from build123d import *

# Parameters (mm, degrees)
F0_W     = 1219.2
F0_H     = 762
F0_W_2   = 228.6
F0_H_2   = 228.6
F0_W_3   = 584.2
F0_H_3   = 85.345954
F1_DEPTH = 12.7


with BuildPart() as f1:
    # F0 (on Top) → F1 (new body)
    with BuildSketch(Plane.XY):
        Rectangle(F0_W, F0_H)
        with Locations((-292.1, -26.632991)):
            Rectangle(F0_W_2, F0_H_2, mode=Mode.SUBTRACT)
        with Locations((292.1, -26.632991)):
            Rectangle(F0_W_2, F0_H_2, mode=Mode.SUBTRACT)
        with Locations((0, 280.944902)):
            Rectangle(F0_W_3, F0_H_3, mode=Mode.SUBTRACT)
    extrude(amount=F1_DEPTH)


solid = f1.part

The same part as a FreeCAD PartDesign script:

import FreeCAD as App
import Part
import Sketcher

V = App.Vector
Q = App.Units.Quantity


def add_polygon(sketch, points):
    """Adds a closed chain of lines whose ends are joined by coincident constraints."""
    first, n = sketch.GeometryCount, len(points)
    for a, b in zip(points, points[1:] + points[:1]):
        sketch.addGeometry(Part.LineSegment(App.Vector(*a, 0), App.Vector(*b, 0)), False)
    for i in range(n):
        sketch.addConstraint(Sketcher.Constraint("Coincident", first + i, 2, first + (i + 1) % n, 1))

doc = App.newDocument("Part")
body = doc.addObject("PartDesign::Body", "Body")

# Sketch on XY plane
sketch1 = doc.addObject("Sketcher::SketchObject", "Sketch")
body.addObject(sketch1)
sketch1.AttachmentSupport = (doc.XY_Plane, [""])
sketch1.MapMode = "FlatFace"
add_polygon(sketch1, [(-610, 381), (-610, -381), (610, -381), (610, 381)])  # lines 0-3
add_polygon(sketch1, [(-178, -141), (-406, -141), (-406, 88), (-178, 88)])  # lines 4-7
add_polygon(sketch1, [(406, -141), (178, -141), (178, 88), (406, 88)])  # lines 8-11
add_polygon(sketch1, [(292, 238), (-292, 238), (-292, 324), (292, 324)])  # lines 12-15
sketch1.addConstraint([
    Sketcher.Constraint("Vertical", 0),
    Sketcher.Constraint("Horizontal", 1),
    Sketcher.Constraint("Vertical", 2),
    Sketcher.Constraint("Horizontal", 3),
    Sketcher.Constraint("Horizontal", 4),
    Sketcher.Constraint("Vertical", 5),
    Sketcher.Constraint("Horizontal", 6),
    Sketcher.Constraint("Vertical", 7),
    Sketcher.Constraint("Horizontal", 8),
    Sketcher.Constraint("Vertical", 9),
    Sketcher.Constraint("Horizontal", 10),
    Sketcher.Constraint("Vertical", 11),
    Sketcher.Constraint("Horizontal", 12),
    Sketcher.Constraint("Vertical", 13),
    Sketcher.Constraint("Horizontal", 14),
    Sketcher.Constraint("Vertical", 15),
    Sketcher.Constraint("Symmetric", 0, 2, 2, 2, -1, 1),
    Sketcher.Constraint("Symmetric", 7, 2, 8, 2, -2),
    Sketcher.Constraint("Symmetric", 5, 2, 10, 2, -2),
    Sketcher.Constraint("Equal", 10, 5),
    Sketcher.Constraint("DistanceX", 1, 1, 1, 2, Q("48 in")),
    Sketcher.Constraint("DistanceX", 4, 2, 4, 1, Q("9 in")),
    Sketcher.Constraint("DistanceX", 12, 2, 12, 1, Q("23 in")),
    Sketcher.Constraint("DistanceY", 0, 2, 0, 1, Q("30 in")),
    Sketcher.Constraint("DistanceX", 4, 2, -1, 1, Q("16 in")),
    Sketcher.Constraint("DistanceX", 12, 2, -1, 1, Q("11.5 in")),
    Sketcher.Constraint("DistanceY", 13, 1, 13, 2, 85.345954),
    Sketcher.Constraint("DistanceY", 4, 2, -1, 1, 140.932991),
    Sketcher.Constraint("DistanceY", -1, 1, 13, 2, 323.617879),
])
pad1 = doc.addObject("PartDesign::Pad", "Pad")
body.addObject(pad1)
pad1.Profile = sketch1
pad1.Length = Q("0.5 in")

doc.recompute()
